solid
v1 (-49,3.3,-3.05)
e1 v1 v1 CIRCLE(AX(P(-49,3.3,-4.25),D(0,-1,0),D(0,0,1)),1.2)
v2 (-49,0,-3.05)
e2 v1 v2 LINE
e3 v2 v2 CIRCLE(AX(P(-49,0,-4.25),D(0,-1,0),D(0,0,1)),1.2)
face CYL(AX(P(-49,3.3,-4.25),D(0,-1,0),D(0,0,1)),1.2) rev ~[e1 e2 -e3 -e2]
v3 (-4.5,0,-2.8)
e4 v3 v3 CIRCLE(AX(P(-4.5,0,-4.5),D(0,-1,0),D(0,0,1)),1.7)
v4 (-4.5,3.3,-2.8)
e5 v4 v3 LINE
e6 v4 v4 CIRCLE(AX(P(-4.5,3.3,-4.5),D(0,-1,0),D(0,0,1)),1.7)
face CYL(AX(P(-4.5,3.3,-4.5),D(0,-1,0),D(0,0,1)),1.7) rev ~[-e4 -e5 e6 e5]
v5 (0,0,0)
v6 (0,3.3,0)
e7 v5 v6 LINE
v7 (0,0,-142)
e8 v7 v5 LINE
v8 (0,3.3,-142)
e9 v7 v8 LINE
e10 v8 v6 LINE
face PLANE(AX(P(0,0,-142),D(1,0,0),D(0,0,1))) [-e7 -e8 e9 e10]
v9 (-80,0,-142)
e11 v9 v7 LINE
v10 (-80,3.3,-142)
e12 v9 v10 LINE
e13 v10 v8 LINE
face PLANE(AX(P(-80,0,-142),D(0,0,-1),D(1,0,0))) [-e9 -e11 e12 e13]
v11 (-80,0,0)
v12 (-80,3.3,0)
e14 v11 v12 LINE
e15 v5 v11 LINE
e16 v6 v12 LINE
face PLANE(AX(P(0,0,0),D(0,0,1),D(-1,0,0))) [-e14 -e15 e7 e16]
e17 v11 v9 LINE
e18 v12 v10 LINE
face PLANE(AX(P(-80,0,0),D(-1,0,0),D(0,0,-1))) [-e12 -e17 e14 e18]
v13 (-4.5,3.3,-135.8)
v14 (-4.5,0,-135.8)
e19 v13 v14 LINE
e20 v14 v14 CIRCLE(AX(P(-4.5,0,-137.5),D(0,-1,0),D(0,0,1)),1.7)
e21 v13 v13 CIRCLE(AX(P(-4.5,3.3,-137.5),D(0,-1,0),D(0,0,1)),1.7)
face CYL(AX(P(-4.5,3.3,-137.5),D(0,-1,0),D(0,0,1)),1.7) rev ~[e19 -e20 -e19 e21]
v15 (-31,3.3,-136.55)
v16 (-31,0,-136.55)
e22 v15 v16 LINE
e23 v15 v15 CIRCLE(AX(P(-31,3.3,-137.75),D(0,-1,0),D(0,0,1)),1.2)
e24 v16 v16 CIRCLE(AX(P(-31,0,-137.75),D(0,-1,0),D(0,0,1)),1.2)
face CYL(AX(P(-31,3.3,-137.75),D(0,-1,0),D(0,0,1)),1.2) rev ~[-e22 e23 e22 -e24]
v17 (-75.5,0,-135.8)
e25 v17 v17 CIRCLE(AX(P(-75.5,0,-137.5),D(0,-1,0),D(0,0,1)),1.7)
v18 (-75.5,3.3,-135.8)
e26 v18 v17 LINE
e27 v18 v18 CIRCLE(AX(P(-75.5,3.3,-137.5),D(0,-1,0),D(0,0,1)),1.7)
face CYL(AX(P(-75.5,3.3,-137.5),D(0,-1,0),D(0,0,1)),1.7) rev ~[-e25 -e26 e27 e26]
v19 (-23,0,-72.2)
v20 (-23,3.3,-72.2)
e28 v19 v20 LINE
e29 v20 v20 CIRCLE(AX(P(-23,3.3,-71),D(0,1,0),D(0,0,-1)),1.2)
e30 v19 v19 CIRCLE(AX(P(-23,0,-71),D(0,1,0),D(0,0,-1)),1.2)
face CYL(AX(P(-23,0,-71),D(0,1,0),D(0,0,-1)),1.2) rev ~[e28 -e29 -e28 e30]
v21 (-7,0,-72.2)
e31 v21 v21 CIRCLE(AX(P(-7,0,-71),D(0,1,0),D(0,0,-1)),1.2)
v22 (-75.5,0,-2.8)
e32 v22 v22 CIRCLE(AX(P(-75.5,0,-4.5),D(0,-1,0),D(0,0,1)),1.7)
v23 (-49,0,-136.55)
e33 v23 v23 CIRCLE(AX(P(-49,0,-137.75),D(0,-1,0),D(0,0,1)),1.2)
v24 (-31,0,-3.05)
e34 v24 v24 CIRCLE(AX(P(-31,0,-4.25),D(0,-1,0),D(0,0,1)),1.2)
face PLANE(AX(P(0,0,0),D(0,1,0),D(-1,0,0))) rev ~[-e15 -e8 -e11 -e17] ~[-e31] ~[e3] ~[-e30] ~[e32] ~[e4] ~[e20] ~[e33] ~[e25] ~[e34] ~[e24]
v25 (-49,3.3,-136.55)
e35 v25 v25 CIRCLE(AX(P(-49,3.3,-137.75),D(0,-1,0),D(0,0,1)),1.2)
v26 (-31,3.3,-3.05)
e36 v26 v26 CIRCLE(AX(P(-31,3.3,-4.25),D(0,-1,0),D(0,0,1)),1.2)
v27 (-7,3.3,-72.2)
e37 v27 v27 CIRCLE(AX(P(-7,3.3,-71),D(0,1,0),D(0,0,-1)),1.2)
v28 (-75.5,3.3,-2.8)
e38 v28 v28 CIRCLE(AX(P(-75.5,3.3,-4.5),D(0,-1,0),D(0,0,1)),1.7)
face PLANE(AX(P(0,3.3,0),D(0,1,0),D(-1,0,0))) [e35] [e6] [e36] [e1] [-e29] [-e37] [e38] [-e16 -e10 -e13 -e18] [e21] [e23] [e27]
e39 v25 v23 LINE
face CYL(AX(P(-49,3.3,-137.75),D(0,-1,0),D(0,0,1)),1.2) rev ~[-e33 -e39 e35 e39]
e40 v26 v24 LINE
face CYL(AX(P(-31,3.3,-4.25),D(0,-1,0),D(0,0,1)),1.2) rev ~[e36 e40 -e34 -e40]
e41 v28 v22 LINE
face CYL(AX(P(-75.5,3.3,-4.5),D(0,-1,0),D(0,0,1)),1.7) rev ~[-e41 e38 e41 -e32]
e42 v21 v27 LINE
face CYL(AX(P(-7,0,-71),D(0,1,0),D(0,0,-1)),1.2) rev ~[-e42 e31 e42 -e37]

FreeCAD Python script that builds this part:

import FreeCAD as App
import Part
import Sketcher


def add_polygon(sketch, points):
    """Adds a closed chain of lines whose ends are joined by coincident constraints."""
    first, n = sketch.GeometryCount, len(points)
    for a, b in zip(points, points[1:] + points[:1]):
        sketch.addGeometry(Part.LineSegment(App.Vector(*a, 0), App.Vector(*b, 0)), False)
    for i in range(n):
        sketch.addConstraint(Sketcher.Constraint("Coincident", first + i, 2, first + (i + 1) % n, 1))

doc = App.newDocument("Part")
params = doc.addObject("Spreadsheet::Sheet", "Params")
for row, (alias, value) in enumerate([
    ("sketch1_width", "80 mm"),
    ("sketch1_height", "142 mm"),
    ("pad1_length", "3.3 mm"),
    ("sketch2_diameter", "3.4 mm"),
    ("hole_diameter", "3.4 mm"),
    ("sketch3_diameter", "3.4 mm"),
    ("hole2_diameter", "3.4 mm"),
    ("sketch4_diameter", "3.4 mm"),
    ("hole3_diameter", "3.4 mm"),
    ("sketch5_diameter", "3.4 mm"),
    ("hole4_diameter", "3.4 mm"),
    ("sketch6_diameter", "2.4 mm"),
    ("hole5_diameter", "2.4 mm"),
    ("sketch7_diameter", "2.4 mm"),
    ("hole6_diameter", "2.4 mm"),
    ("sketch8_diameter", "2.4 mm"),
    ("hole7_diameter", "2.4 mm"),
    ("sketch9_diameter", "2.4 mm"),
    ("hole8_diameter", "2.4 mm"),
    ("sketch10_diameter", "2.4 mm"),
    ("hole9_diameter", "2.4 mm"),
    ("sketch11_diameter", "2.4 mm"),
    ("hole10_diameter", "2.4 mm"),
], start=1):
    params.set(f"A{row}", alias)
    params.set(f"B{row}", "=" + value)
    params.setAlias(f"B{row}", alias)

body = doc.addObject("PartDesign::Body", "Body")

# Sketch on XZ plane
sketch1 = body.newObject("Sketcher::SketchObject", "Sketch")
sketch1.AttachmentSupport = (doc.getObject("XZ_Plane"), [""])
sketch1.MapMode = "FlatFace"
add_polygon(sketch1, [(-80, 0), (0, 0), (0, -142), (-80, -142)])  # lines 0-3
sketch1.addConstraint([
    Sketcher.Constraint("Horizontal", 0),
    Sketcher.Constraint("Vertical", 1),
    Sketcher.Constraint("Horizontal", 2),
    Sketcher.Constraint("Vertical", 3),
    Sketcher.Constraint("Coincident", 0, 2, -1, 1),
    Sketcher.Constraint("DistanceX", 0, 1, 0, 2, 80.0),
    Sketcher.Constraint("DistanceY", 1, 2, 1, 1, 142.0),
])
sketch1.setExpression("Constraints[9]", "Params.sketch1_width")
sketch1.setExpression("Constraints[10]", "Params.sketch1_height")
pad1 = body.newObject("PartDesign::Pad", "Pad")
pad1.Profile = sketch1
pad1.setExpression("Length", "Params.pad1_length")
pad1.Reversed = True

# Sketch on XZ plane
sketch2 = body.newObject("Sketcher::SketchObject", "Sketch001")
sketch2.AttachmentSupport = (doc.getObject("XZ_Plane"), [""])
sketch2.MapMode = "FlatFace"
sketch2.AttachmentOffset = App.Placement(App.Vector(0, 0, -3.3), App.Rotation())
sketch2.addGeometry(Part.Circle(App.Vector(-75.5, -4.5, 0), App.Vector(0, 0, 1), 1.7), False)
sketch2.addConstraint([
    Sketcher.Constraint("Diameter", 0, 3.4),
    Sketcher.Constraint("DistanceX", 0, 3, -1, 1, 75.5),
    Sketcher.Constraint("DistanceY", 0, 3, -1, 1, 4.5),
])
sketch2.setExpression("Constraints[0]", "Params.sketch2_diameter")
doc.recompute()
hole = body.newObject("PartDesign::Hole", "Hole")
hole.Profile = sketch2
hole.ThreadType = "None"
hole.setExpression("Diameter", "Params.hole_diameter")
hole.DepthType = "ThroughAll"
hole.Reversed = True

# Sketch on XZ plane
sketch3 = body.newObject("Sketcher::SketchObject", "Sketch002")
sketch3.AttachmentSupport = (doc.getObject("XZ_Plane"), [""])
sketch3.MapMode = "FlatFace"
sketch3.AttachmentOffset = App.Placement(App.Vector(0, 0, -3.3), App.Rotation())
sketch3.addGeometry(Part.Circle(App.Vector(-4.5, -4.5, 0), App.Vector(0, 0, 1), 1.7), False)
sketch3.addConstraint([
    Sketcher.Constraint("Diameter", 0, 3.4),
    Sketcher.Constraint("DistanceX", 0, 3, -1, 1, 4.5),
    Sketcher.Constraint("DistanceY", 0, 3, -1, 1, 4.5),
])
sketch3.setExpression("Constraints[0]", "Params.sketch3_diameter")
doc.recompute()
hole2 = body.newObject("PartDesign::Hole", "Hole001")
hole2.Profile = sketch3
hole2.ThreadType = "None"
hole2.setExpression("Diameter", "Params.hole2_diameter")
hole2.DepthType = "ThroughAll"
hole2.Reversed = True

# Sketch on XZ plane
sketch4 = body.newObject("Sketcher::SketchObject", "Sketch003")
sketch4.AttachmentSupport = (doc.getObject("XZ_Plane"), [""])
sketch4.MapMode = "FlatFace"
sketch4.AttachmentOffset = App.Placement(App.Vector(0, 0, -3.3), App.Rotation())
sketch4.addGeometry(Part.Circle(App.Vector(-4.5, -137.5, 0), App.Vector(0, 0, 1), 1.7), False)
sketch4.addConstraint([
    Sketcher.Constraint("Diameter", 0, 3.4),
    Sketcher.Constraint("DistanceX", 0, 3, -1, 1, 4.5),
    Sketcher.Constraint("DistanceY", 0, 3, -1, 1, 137.5),
])
sketch4.setExpression("Constraints[0]", "Params.sketch4_diameter")
doc.recompute()
hole3 = body.newObject("PartDesign::Hole", "Hole002")
hole3.Profile = sketch4
hole3.ThreadType = "None"
hole3.setExpression("Diameter", "Params.hole3_diameter")
hole3.DepthType = "ThroughAll"
hole3.Reversed = True

# Sketch on XZ plane
sketch5 = body.newObject("Sketcher::SketchObject", "Sketch004")
sketch5.AttachmentSupport = (doc.getObject("XZ_Plane"), [""])
sketch5.MapMode = "FlatFace"
sketch5.AttachmentOffset = App.Placement(App.Vector(0, 0, -3.3), App.Rotation())
sketch5.addGeometry(Part.Circle(App.Vector(-75.5, -137.5, 0), App.Vector(0, 0, 1), 1.7), False)
sketch5.addConstraint([
    Sketcher.Constraint("Diameter", 0, 3.4),
    Sketcher.Constraint("DistanceX", 0, 3, -1, 1, 75.5),
    Sketcher.Constraint("DistanceY", 0, 3, -1, 1, 137.5),
])
sketch5.setExpression("Constraints[0]", "Params.sketch5_diameter")
doc.recompute()
hole4 = body.newObject("PartDesign::Hole", "Hole003")
hole4.Profile = sketch5
hole4.ThreadType = "None"
hole4.setExpression("Diameter", "Params.hole4_diameter")
hole4.DepthType = "ThroughAll"
hole4.Reversed = True

# Sketch on XZ plane
sketch6 = body.newObject("Sketcher::SketchObject", "Sketch005")
sketch6.AttachmentSupport = (doc.getObject("XZ_Plane"), [""])
sketch6.MapMode = "FlatFace"
sketch6.AttachmentOffset = App.Placement(App.Vector(0, 0, -3.3), App.Rotation())
sketch6.addGeometry(Part.Circle(App.Vector(-49, -137.75, 0), App.Vector(0, 0, 1), 1.2), False)
sketch6.addConstraint([
    Sketcher.Constraint("Diameter", 0, 2.4),
    Sketcher.Constraint("DistanceX", 0, 3, -1, 1, 49.0),
    Sketcher.Constraint("DistanceY", 0, 3, -1, 1, 137.75),
])
sketch6.setExpression("Constraints[0]", "Params.sketch6_diameter")
doc.recompute()
hole5 = body.newObject("PartDesign::Hole", "Hole004")
hole5.Profile = sketch6
hole5.ThreadType = "None"
hole5.setExpression("Diameter", "Params.hole5_diameter")
hole5.DepthType = "ThroughAll"
hole5.Reversed = True

# Sketch on XZ plane
sketch7 = body.newObject("Sketcher::SketchObject", "Sketch006")
sketch7.AttachmentSupport = (doc.getObject("XZ_Plane"), [""])
sketch7.MapMode = "FlatFace"
sketch7.AttachmentOffset = App.Placement(App.Vector(0, 0, -3.3), App.Rotation())
sketch7.addGeometry(Part.Circle(App.Vector(-31, -137.75, 0), App.Vector(0, 0, 1), 1.2), False)
sketch7.addConstraint([
    Sketcher.Constraint("Diameter", 0, 2.4),
    Sketcher.Constraint("DistanceX", 0, 3, -1, 1, 31.0),
    Sketcher.Constraint("DistanceY", 0, 3, -1, 1, 137.75),
])
sketch7.setExpression("Constraints[0]", "Params.sketch7_diameter")
doc.recompute()
hole6 = body.newObject("PartDesign::Hole", "Hole005")
hole6.Profile = sketch7
hole6.ThreadType = "None"
hole6.setExpression("Diameter", "Params.hole6_diameter")
hole6.DepthType = "ThroughAll"
hole6.Reversed = True

# Sketch on XZ plane
sketch8 = body.newObject("Sketcher::SketchObject", "Sketch007")
sketch8.AttachmentSupport = (doc.getObject("XZ_Plane"), [""])
sketch8.MapMode = "FlatFace"
sketch8.AttachmentOffset = App.Placement(App.Vector(0, 0, -3.3), App.Rotation())
sketch8.addGeometry(Part.Circle(App.Vector(-31, -4.25, 0), App.Vector(0, 0, 1), 1.2), False)
sketch8.addConstraint([
    Sketcher.Constraint("Diameter", 0, 2.4),
    Sketcher.Constraint("DistanceX", 0, 3, -1, 1, 31.0),
    Sketcher.Constraint("DistanceY", 0, 3, -1, 1, 4.25),
])
sketch8.setExpression("Constraints[0]", "Params.sketch8_diameter")
doc.recompute()
hole7 = body.newObject("PartDesign::Hole", "Hole006")
hole7.Profile = sketch8
hole7.ThreadType = "None"
hole7.setExpression("Diameter", "Params.hole7_diameter")
hole7.DepthType = "ThroughAll"
hole7.Reversed = True

# Sketch on XZ plane
sketch9 = body.newObject("Sketcher::SketchObject", "Sketch008")
sketch9.AttachmentSupport = (doc.getObject("XZ_Plane"), [""])
sketch9.MapMode = "FlatFace"
sketch9.AttachmentOffset = App.Placement(App.Vector(0, 0, -3.3), App.Rotation())
sketch9.addGeometry(Part.Circle(App.Vector(-49, -4.25, 0), App.Vector(0, 0, 1), 1.2), False)
sketch9.addConstraint([
    Sketcher.Constraint("Diameter", 0, 2.4),
    Sketcher.Constraint("DistanceX", 0, 3, -1, 1, 49.0),
    Sketcher.Constraint("DistanceY", 0, 3, -1, 1, 4.25),
])
sketch9.setExpression("Constraints[0]", "Params.sketch9_diameter")
doc.recompute()
hole8 = body.newObject("PartDesign::Hole", "Hole007")
hole8.Profile = sketch9
hole8.ThreadType = "None"
hole8.setExpression("Diameter", "Params.hole8_diameter")
hole8.DepthType = "ThroughAll"
hole8.Reversed = True

# Sketch on XZ plane
sketch10 = body.newObject("Sketcher::SketchObject", "Sketch009")
sketch10.AttachmentSupport = (doc.getObject("XZ_Plane"), [""])
sketch10.MapMode = "FlatFace"
sketch10.addGeometry(Part.Circle(App.Vector(-7, -71, 0), App.Vector(0, 0, 1), 1.2), False)
sketch10.addConstraint([
    Sketcher.Constraint("Diameter", 0, 2.4),
    Sketcher.Constraint("DistanceX", 0, 3, -1, 1, 7.0),
    Sketcher.Constraint("DistanceY", 0, 3, -1, 1, 71.0),
])
sketch10.setExpression("Constraints[0]", "Params.sketch10_diameter")
doc.recompute()
hole9 = body.newObject("PartDesign::Hole", "Hole008")
hole9.Profile = sketch10
hole9.ThreadType = "None"
hole9.setExpression("Diameter", "Params.hole9_diameter")
hole9.DepthType = "ThroughAll"

# Sketch on XZ plane
sketch11 = body.newObject("Sketcher::SketchObject", "Sketch010")
sketch11.AttachmentSupport = (doc.getObject("XZ_Plane"), [""])
sketch11.MapMode = "FlatFace"
sketch11.addGeometry(Part.Circle(App.Vector(-23, -71, 0), App.Vector(0, 0, 1), 1.2), False)
sketch11.addConstraint([
    Sketcher.Constraint("Diameter", 0, 2.4),
    Sketcher.Constraint("DistanceX", 0, 3, -1, 1, 23.0),
    Sketcher.Constraint("DistanceY", 0, 3, -1, 1, 71.0),
])
sketch11.setExpression("Constraints[0]", "Params.sketch11_diameter")
doc.recompute()
hole10 = body.newObject("PartDesign::Hole", "Hole009")
hole10.Profile = sketch11
hole10.ThreadType = "None"
hole10.setExpression("Diameter", "Params.hole10_diameter")
hole10.DepthType = "ThroughAll"

doc.recompute()
